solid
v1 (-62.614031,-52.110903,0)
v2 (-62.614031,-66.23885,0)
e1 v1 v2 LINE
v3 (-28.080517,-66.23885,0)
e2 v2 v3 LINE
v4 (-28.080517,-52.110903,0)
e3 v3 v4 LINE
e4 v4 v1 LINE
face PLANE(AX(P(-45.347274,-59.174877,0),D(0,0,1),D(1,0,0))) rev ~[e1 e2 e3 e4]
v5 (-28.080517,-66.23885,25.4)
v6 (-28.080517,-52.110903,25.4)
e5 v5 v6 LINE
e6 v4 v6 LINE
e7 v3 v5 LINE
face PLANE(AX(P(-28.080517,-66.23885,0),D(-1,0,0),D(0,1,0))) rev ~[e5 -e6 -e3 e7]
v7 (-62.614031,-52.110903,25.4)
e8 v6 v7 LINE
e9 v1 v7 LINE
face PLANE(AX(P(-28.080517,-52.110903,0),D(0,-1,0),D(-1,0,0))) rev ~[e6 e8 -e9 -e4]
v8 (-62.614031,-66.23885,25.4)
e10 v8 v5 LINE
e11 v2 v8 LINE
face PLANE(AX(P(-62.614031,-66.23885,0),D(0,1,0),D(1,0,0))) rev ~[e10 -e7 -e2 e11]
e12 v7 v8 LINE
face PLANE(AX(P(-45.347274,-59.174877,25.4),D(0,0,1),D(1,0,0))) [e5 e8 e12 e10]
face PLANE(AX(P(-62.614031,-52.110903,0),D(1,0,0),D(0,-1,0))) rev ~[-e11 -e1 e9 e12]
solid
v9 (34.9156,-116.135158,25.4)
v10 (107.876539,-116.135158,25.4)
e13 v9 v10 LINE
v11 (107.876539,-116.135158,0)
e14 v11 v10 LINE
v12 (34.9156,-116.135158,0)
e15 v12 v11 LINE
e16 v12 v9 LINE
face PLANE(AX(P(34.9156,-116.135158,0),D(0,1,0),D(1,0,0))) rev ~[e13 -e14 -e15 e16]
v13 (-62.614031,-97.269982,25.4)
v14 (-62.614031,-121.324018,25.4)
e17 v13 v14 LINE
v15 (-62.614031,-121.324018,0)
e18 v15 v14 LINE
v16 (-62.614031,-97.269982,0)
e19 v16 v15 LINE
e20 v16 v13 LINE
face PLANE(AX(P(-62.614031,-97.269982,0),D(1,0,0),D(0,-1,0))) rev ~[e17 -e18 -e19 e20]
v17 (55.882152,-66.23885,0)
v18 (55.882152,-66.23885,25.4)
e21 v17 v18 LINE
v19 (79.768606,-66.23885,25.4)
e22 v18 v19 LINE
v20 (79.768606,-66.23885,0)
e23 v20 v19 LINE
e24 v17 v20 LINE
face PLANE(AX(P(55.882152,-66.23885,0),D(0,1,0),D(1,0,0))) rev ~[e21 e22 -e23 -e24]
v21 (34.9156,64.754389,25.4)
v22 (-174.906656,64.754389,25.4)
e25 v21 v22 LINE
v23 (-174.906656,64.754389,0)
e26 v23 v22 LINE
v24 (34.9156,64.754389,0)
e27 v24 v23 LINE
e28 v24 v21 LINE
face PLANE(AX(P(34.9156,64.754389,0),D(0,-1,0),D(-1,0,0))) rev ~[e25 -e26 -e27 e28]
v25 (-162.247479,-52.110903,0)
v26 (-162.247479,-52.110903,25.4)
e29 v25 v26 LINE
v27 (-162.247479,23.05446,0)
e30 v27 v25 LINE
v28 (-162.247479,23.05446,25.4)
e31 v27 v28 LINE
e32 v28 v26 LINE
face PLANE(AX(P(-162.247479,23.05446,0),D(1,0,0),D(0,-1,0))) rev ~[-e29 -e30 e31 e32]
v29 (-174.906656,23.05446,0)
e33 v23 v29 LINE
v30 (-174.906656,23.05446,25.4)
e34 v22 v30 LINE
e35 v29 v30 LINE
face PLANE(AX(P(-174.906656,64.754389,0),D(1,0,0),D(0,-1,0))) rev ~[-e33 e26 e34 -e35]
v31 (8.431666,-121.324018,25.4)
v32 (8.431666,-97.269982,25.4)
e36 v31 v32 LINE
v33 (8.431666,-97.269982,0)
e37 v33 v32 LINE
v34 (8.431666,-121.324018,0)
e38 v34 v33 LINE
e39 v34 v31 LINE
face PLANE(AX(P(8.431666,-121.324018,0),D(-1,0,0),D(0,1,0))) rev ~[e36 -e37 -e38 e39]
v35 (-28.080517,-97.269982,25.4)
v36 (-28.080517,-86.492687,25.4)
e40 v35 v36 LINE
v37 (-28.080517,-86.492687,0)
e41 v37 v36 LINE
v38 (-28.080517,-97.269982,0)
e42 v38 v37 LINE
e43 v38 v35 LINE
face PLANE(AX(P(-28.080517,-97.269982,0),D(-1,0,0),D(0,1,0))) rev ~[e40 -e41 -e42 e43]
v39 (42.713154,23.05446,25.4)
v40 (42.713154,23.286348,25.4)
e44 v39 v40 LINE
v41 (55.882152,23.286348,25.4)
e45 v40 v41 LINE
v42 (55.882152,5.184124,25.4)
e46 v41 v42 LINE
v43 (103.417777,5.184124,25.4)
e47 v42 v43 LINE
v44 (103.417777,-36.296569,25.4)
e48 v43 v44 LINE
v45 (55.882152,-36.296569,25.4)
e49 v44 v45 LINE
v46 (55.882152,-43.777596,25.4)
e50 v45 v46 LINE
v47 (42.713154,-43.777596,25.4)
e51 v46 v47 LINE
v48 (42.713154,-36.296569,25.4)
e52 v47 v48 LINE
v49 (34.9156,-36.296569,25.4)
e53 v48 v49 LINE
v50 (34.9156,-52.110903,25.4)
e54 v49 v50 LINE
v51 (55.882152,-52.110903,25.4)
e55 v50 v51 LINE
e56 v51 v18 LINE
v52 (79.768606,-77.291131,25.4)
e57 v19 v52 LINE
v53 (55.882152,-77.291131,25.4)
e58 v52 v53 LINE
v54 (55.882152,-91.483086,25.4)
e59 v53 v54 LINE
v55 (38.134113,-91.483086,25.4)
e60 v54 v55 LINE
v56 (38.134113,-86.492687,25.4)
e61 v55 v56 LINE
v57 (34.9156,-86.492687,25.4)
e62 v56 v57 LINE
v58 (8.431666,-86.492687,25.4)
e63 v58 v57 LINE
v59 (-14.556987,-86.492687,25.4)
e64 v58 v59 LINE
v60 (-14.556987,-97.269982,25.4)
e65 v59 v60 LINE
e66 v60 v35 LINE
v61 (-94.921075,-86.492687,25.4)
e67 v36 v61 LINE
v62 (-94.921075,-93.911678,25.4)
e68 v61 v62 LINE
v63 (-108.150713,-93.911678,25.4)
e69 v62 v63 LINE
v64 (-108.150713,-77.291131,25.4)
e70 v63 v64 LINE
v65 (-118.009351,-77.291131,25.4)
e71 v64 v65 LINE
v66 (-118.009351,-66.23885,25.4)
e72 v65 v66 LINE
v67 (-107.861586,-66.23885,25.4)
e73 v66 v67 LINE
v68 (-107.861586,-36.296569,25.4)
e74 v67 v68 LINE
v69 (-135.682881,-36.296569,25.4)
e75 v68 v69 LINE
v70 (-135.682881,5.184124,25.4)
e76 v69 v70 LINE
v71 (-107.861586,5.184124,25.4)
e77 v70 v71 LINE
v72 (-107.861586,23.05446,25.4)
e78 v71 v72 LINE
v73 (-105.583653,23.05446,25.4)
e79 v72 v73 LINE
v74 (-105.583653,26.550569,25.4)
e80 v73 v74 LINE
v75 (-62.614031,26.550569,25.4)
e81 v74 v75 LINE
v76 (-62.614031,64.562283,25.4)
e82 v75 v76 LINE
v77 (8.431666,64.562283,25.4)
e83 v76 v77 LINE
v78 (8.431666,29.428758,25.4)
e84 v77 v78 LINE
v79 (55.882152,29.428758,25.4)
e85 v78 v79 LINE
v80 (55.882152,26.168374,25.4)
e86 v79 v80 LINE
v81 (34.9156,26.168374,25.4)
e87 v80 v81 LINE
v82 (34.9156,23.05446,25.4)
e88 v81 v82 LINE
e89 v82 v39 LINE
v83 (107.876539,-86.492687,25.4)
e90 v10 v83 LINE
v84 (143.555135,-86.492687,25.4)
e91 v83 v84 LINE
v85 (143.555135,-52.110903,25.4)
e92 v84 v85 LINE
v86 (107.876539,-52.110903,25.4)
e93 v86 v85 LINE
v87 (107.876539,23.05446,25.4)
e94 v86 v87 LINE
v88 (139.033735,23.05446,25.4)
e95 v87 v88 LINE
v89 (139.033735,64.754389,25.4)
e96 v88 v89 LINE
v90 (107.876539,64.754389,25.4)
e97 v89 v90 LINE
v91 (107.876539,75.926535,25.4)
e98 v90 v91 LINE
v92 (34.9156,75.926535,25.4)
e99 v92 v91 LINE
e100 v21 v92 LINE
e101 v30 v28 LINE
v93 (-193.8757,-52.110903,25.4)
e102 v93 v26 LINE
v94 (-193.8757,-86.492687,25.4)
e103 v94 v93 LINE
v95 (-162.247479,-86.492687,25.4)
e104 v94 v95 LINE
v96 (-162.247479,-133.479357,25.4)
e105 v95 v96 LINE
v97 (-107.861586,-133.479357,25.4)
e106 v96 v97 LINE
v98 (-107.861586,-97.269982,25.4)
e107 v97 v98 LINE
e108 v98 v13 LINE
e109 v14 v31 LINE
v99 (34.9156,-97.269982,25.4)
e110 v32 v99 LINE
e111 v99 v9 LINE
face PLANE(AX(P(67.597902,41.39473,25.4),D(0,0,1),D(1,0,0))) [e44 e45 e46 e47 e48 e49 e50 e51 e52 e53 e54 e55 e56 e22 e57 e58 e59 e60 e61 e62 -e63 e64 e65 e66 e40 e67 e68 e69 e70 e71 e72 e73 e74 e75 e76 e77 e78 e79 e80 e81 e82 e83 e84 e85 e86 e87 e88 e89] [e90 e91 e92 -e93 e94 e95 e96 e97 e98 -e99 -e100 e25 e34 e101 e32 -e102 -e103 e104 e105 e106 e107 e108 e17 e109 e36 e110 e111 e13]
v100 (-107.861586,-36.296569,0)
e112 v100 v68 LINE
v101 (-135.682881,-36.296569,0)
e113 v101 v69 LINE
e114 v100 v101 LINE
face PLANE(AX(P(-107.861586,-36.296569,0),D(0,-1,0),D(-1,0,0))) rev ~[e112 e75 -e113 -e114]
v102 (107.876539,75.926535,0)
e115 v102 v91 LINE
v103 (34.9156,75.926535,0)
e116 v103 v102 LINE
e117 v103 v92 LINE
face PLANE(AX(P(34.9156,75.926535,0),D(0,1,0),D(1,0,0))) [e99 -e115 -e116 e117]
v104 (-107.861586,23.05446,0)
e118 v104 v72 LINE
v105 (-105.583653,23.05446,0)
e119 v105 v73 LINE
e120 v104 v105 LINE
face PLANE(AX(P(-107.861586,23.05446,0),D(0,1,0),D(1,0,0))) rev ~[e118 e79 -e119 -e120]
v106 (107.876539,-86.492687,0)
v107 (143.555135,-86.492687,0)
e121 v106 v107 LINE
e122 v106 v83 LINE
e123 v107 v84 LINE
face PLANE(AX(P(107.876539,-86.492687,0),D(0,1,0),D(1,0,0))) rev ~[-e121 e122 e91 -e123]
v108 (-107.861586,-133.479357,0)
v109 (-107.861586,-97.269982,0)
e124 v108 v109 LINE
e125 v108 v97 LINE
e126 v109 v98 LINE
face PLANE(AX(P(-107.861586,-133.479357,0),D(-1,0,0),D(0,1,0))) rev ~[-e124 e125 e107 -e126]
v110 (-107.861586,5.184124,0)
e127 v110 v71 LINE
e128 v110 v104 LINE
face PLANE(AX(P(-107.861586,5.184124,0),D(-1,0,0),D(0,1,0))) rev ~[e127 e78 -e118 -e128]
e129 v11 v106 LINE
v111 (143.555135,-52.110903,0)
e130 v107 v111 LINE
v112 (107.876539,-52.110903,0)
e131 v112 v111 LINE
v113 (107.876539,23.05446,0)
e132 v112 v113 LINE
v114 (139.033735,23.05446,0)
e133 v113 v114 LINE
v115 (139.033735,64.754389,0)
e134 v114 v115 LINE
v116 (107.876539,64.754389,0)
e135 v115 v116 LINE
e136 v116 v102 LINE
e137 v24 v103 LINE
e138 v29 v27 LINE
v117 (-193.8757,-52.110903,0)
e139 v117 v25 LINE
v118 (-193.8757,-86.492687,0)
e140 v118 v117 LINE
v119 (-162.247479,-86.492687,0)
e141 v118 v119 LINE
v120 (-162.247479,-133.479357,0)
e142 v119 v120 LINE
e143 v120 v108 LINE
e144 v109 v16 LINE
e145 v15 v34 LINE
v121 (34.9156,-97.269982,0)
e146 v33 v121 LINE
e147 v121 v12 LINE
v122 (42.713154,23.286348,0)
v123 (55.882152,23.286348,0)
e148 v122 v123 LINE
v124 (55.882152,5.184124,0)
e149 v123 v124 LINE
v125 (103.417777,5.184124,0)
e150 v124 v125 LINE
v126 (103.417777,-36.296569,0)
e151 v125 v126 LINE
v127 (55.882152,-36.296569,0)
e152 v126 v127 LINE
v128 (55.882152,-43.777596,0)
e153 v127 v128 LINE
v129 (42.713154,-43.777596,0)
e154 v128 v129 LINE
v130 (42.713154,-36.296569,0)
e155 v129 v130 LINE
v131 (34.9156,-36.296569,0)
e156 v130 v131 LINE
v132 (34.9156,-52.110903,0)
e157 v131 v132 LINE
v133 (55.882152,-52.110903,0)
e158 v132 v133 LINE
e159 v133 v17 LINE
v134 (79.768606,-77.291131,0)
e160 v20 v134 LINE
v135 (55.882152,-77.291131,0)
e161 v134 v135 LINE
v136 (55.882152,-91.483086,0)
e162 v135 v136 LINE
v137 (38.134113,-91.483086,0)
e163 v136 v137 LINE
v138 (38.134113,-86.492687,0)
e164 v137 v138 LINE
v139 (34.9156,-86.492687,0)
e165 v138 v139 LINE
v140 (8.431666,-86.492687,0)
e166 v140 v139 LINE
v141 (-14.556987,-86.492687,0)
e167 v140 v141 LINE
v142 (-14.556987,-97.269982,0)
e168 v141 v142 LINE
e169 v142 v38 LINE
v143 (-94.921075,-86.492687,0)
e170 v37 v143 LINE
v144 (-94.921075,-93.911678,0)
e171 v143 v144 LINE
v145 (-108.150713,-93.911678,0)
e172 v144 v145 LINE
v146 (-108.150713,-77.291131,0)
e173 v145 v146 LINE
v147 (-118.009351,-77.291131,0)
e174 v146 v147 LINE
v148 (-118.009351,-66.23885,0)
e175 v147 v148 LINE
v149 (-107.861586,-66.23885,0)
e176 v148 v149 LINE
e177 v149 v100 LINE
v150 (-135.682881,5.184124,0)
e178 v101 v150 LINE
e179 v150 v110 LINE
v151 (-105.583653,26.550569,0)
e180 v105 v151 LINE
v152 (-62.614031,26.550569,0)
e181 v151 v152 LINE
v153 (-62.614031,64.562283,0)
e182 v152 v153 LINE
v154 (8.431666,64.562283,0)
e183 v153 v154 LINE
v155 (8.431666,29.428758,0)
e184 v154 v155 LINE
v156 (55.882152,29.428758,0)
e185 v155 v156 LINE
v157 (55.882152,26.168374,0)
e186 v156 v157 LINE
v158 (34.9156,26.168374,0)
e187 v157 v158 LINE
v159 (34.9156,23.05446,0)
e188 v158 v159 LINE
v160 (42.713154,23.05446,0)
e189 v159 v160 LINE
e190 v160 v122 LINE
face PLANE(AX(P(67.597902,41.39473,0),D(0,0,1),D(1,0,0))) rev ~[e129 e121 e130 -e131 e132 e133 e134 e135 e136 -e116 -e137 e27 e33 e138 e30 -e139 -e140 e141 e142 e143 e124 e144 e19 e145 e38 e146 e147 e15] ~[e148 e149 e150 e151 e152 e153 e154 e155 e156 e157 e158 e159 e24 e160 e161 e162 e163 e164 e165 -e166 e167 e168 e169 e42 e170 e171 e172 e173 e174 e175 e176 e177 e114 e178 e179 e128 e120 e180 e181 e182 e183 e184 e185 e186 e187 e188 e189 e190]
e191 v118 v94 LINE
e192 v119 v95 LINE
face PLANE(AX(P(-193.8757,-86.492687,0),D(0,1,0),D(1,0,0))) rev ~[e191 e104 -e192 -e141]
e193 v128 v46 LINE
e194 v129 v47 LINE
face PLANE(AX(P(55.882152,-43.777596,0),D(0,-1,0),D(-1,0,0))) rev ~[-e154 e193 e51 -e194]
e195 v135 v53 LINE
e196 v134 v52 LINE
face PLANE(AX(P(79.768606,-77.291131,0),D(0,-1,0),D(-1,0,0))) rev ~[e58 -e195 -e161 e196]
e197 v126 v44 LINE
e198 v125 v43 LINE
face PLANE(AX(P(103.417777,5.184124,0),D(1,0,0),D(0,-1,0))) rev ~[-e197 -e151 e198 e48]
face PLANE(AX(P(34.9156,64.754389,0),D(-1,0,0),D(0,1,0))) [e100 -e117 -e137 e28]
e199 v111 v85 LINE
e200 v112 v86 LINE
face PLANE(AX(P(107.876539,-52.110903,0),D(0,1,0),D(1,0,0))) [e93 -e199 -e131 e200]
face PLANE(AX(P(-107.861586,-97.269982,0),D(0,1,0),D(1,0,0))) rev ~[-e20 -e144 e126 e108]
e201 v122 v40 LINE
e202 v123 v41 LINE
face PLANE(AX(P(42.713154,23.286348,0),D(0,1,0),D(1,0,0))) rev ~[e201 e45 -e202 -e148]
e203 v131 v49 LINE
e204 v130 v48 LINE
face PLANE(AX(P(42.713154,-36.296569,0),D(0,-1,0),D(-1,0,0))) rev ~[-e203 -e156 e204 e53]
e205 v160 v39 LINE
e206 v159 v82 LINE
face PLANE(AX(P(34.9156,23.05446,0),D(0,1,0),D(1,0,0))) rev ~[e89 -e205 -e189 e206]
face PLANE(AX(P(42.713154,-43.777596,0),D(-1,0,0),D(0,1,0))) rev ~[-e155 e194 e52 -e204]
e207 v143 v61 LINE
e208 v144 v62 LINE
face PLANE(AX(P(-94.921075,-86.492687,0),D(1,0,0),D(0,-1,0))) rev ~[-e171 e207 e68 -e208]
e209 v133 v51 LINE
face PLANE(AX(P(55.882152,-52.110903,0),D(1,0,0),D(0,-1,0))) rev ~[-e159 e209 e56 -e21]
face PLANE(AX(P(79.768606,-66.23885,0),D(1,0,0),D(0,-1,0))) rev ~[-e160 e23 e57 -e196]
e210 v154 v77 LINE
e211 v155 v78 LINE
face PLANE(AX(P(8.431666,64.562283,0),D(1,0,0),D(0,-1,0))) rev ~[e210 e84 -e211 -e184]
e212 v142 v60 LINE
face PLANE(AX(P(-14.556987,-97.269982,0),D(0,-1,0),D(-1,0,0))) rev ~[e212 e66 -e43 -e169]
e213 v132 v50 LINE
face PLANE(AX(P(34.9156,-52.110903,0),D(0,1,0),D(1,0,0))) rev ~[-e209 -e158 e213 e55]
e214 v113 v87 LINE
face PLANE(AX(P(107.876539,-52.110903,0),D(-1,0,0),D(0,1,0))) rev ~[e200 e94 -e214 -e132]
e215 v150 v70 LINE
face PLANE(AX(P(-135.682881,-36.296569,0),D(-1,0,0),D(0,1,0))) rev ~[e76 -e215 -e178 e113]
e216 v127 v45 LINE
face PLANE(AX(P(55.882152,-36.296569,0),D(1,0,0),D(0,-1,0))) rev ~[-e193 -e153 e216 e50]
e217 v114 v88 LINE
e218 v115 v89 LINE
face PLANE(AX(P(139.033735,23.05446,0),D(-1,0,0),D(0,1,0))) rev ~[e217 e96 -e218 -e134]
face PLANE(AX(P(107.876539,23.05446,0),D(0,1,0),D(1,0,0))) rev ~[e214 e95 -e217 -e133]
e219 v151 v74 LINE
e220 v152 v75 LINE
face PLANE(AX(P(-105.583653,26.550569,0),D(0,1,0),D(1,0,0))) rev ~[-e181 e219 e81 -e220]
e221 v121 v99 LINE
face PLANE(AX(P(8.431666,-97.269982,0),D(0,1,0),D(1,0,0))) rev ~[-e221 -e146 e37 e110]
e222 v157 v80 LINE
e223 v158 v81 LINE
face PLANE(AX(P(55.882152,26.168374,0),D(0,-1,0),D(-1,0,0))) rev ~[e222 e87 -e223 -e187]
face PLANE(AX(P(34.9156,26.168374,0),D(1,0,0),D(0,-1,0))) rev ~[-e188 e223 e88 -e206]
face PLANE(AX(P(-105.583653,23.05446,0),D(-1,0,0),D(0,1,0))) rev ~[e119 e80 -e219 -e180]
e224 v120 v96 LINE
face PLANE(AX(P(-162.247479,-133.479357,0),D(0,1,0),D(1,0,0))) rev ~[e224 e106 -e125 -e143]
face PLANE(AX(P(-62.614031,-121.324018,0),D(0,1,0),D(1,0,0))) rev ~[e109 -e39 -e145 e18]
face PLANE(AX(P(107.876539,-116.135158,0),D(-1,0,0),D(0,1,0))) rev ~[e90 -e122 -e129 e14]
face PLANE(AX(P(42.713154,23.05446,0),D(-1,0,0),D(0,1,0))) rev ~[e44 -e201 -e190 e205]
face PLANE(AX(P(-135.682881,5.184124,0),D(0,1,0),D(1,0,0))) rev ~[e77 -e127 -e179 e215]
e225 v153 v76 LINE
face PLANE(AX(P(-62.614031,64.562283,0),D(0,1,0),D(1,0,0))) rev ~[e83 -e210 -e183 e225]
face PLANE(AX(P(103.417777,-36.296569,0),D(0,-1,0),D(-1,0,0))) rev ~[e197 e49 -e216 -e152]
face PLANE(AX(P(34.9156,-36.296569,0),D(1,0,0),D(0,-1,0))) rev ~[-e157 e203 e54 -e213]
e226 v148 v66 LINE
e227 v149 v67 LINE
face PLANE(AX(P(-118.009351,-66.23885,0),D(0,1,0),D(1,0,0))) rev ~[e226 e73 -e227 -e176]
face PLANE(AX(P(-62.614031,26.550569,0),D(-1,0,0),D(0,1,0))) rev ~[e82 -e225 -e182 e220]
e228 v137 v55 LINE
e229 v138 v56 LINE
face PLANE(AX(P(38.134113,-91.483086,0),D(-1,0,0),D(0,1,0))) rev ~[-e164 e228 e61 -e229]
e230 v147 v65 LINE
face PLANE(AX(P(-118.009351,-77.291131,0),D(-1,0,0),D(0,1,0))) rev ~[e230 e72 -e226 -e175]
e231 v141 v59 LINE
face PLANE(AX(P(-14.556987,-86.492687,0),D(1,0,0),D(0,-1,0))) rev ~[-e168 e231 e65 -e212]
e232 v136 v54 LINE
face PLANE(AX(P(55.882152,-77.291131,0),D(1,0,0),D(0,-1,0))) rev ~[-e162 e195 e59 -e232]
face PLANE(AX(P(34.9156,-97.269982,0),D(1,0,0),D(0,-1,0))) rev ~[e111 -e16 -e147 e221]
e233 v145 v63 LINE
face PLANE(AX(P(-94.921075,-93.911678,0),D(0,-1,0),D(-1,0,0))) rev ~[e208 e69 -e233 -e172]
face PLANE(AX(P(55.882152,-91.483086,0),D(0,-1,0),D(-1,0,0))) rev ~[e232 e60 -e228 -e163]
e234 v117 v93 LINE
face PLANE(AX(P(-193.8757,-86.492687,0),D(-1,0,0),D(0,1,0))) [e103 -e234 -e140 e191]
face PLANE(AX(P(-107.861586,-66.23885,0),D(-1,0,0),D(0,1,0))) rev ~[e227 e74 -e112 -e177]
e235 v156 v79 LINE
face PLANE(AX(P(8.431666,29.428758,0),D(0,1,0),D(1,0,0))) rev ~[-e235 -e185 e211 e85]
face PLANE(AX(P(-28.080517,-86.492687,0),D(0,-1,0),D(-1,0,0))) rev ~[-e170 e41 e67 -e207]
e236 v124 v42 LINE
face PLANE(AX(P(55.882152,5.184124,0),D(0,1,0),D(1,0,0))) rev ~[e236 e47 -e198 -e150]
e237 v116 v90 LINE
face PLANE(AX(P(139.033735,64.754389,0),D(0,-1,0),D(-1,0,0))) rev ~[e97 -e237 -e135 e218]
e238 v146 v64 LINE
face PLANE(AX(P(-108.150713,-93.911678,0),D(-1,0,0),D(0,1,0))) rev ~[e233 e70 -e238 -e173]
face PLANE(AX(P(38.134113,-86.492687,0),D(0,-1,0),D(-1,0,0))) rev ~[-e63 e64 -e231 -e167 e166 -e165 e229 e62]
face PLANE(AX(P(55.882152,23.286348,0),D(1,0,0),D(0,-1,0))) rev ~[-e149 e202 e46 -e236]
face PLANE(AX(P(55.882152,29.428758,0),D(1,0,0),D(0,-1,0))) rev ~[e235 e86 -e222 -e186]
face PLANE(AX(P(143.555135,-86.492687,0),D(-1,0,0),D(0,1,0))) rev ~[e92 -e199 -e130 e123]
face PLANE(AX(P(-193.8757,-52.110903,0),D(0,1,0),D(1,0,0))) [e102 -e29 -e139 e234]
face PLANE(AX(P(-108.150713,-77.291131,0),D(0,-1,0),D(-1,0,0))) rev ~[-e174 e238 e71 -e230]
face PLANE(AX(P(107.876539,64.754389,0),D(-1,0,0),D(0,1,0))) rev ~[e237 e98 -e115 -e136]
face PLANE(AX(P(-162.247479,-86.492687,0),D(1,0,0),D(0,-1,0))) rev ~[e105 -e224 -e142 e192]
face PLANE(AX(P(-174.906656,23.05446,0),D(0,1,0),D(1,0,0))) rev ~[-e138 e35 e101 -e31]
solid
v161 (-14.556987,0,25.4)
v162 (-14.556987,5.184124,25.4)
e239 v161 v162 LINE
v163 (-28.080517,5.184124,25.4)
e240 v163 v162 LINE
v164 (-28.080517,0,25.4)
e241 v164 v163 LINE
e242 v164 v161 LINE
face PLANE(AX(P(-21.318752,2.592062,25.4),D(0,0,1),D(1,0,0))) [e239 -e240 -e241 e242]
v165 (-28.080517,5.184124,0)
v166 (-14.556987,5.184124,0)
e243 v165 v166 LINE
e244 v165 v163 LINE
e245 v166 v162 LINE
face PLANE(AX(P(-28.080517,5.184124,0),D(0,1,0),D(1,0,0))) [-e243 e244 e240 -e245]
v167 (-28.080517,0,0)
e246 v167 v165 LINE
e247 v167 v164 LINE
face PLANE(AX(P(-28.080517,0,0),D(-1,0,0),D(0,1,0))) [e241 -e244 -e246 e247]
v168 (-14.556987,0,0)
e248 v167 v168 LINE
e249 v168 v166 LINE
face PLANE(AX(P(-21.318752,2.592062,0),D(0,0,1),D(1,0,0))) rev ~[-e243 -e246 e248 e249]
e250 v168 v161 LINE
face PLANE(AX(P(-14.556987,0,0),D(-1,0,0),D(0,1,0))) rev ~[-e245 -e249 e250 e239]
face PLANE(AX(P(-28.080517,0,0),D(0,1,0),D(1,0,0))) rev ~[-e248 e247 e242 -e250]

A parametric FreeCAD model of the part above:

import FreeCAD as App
import Part
import Sketcher
from FreeCAD import Vector
Q = App.Units.Quantity

doc = App.newDocument("Part")
body = doc.addObject("PartDesign::Body", "Body")

sketch1 = body.newObject("Sketcher::SketchObject", "Sketch")
sketch1.AttachmentSupport = (doc.getObject("XY_Plane"), [""])
sketch1.MapMode = "FlatFace"
sketch1.addGeometry(Part.LineSegment(Vector(-62.61, -97.27, 0), Vector(-62.61, -121.32, 0)), False)
sketch1.addGeometry(Part.LineSegment(Vector(-62.61, -121.32, 0), Vector(8.43, -121.32, 0)), False)
sketch1.addGeometry(Part.LineSegment(Vector(8.43, -121.32, 0), Vector(8.43, -97.27, 0)), False)
sketch1.addGeometry(Part.LineSegment(Vector(8.43, -97.27, 0), Vector(34.92, -97.27, 0)), False)
sketch1.addGeometry(Part.LineSegment(Vector(34.92, -97.27, 0), Vector(34.92, -116.14, 0)), False)
sketch1.addGeometry(Part.LineSegment(Vector(34.92, -116.14, 0), Vector(107.88, -116.14, 0)), False)
sketch1.addGeometry(Part.LineSegment(Vector(107.88, -116.14, 0), Vector(107.88, -86.49, 0)), False)
sketch1.addGeometry(Part.LineSegment(Vector(107.88, -86.49, 0), Vector(143.56, -86.49, 0)), False)
sketch1.addGeometry(Part.LineSegment(Vector(143.56, -86.49, 0), Vector(143.56, -52.11, 0)), False)
sketch1.addGeometry(Part.LineSegment(Vector(143.56, -52.11, 0), Vector(107.88, -52.11, 0)), False)
sketch1.addGeometry(Part.LineSegment(Vector(107.88, -52.11, 0), Vector(107.88, 23.05, 0)), False)
sketch1.addGeometry(Part.LineSegment(Vector(107.88, 23.05, 0), Vector(139.03, 23.05, 0)), False)
sketch1.addGeometry(Part.LineSegment(Vector(139.03, 23.05, 0), Vector(139.03, 64.75, 0)), False)
sketch1.addGeometry(Part.LineSegment(Vector(139.03, 64.75, 0), Vector(107.88, 64.75, 0)), False)
sketch1.addGeometry(Part.LineSegment(Vector(107.88, 64.75, 0), Vector(107.88, 75.93, 0)), False)
sketch1.addGeometry(Part.LineSegment(Vector(107.88, 75.93, 0), Vector(34.92, 75.93, 0)), False)
sketch1.addGeometry(Part.LineSegment(Vector(34.92, 75.93, 0), Vector(34.92, 64.75, 0)), False)
sketch1.addGeometry(Part.LineSegment(Vector(34.92, 64.75, 0), Vector(-174.91, 64.75, 0)), False)
sketch1.addGeometry(Part.LineSegment(Vector(-174.91, 64.75, 0), Vector(-174.91, 23.05, 0)), False)
sketch1.addGeometry(Part.LineSegment(Vector(-174.91, 23.05, 0), Vector(-162.25, 23.05, 0)), False)
sketch1.addGeometry(Part.LineSegment(Vector(-162.25, 23.05, 0), Vector(-162.25, -52.11, 0)), False)
sketch1.addGeometry(Part.LineSegment(Vector(-162.25, -52.11, 0), Vector(-193.88, -52.11, 0)), False)
sketch1.addGeometry(Part.LineSegment(Vector(-193.88, -52.11, 0), Vector(-193.88, -86.49, 0)), False)
sketch1.addGeometry(Part.LineSegment(Vector(-193.88, -86.49, 0), Vector(-162.25, -86.49, 0)), False)
sketch1.addGeometry(Part.LineSegment(Vector(-162.25, -86.49, 0), Vector(-162.25, -133.48, 0)), False)
sketch1.addGeometry(Part.LineSegment(Vector(-162.25, -133.48, 0), Vector(-107.86, -133.48, 0)), False)
sketch1.addGeometry(Part.LineSegment(Vector(-107.86, -133.48, 0), Vector(-107.86, -97.27, 0)), False)
sketch1.addGeometry(Part.LineSegment(Vector(-107.86, -97.27, 0), Vector(-62.61, -97.27, 0)), False)
sketch1.addGeometry(Part.LineSegment(Vector(34.92, 26.17, 0), Vector(34.92, 23.05, 0)), False)
sketch1.addGeometry(Part.LineSegment(Vector(34.92, 23.05, 0), Vector(42.71, 23.05, 0)), False)
sketch1.addGeometry(Part.LineSegment(Vector(42.71, 23.05, 0), Vector(42.71, 23.29, 0)), False)
sketch1.addGeometry(Part.LineSegment(Vector(42.71, 23.29, 0), Vector(55.88, 23.29, 0)), False)
sketch1.addGeometry(Part.LineSegment(Vector(55.88, 23.29, 0), Vector(55.88, 5.18, 0)), False)
sketch1.addGeometry(Part.LineSegment(Vector(55.88, 5.18, 0), Vector(103.42, 5.18, 0)), False)
sketch1.addGeometry(Part.LineSegment(Vector(103.42, 5.18, 0), Vector(103.42, -36.3, 0)), False)
sketch1.addGeometry(Part.LineSegment(Vector(103.42, -36.3, 0), Vector(55.88, -36.3, 0)), False)
sketch1.addGeometry(Part.LineSegment(Vector(55.88, -36.3, 0), Vector(55.88, -43.78, 0)), False)
sketch1.addGeometry(Part.LineSegment(Vector(55.88, -43.78, 0), Vector(42.71, -43.78, 0)), False)
sketch1.addGeometry(Part.LineSegment(Vector(42.71, -43.78, 0), Vector(42.71, -36.3, 0)), False)
sketch1.addGeometry(Part.LineSegment(Vector(42.71, -36.3, 0), Vector(34.92, -36.3, 0)), False)
sketch1.addGeometry(Part.LineSegment(Vector(34.92, -36.3, 0), Vector(34.92, -52.11, 0)), False)
sketch1.addGeometry(Part.LineSegment(Vector(34.92, -52.11, 0), Vector(55.88, -52.11, 0)), False)
sketch1.addGeometry(Part.LineSegment(Vector(55.88, -52.11, 0), Vector(55.88, -66.24, 0)), False)
sketch1.addGeometry(Part.LineSegment(Vector(55.88, -66.24, 0), Vector(79.77, -66.24, 0)), False)
sketch1.addGeometry(Part.LineSegment(Vector(79.77, -66.24, 0), Vector(79.77, -77.29, 0)), False)
sketch1.addGeometry(Part.LineSegment(Vector(79.77, -77.29, 0), Vector(55.88, -77.29, 0)), False)
sketch1.addGeometry(Part.LineSegment(Vector(55.88, -77.29, 0), Vector(55.88, -91.48, 0)), False)
sketch1.addGeometry(Part.LineSegment(Vector(55.88, -91.48, 0), Vector(38.13, -91.48, 0)), False)
sketch1.addGeometry(Part.LineSegment(Vector(38.13, -91.48, 0), Vector(38.13, -86.49, 0)), False)
sketch1.addGeometry(Part.LineSegment(Vector(38.13, -86.49, 0), Vector(34.92, -86.49, 0)), False)
sketch1.addGeometry(Part.LineSegment(Vector(34.92, -86.49, 0), Vector(8.43, -86.49, 0)), False)
sketch1.addGeometry(Part.LineSegment(Vector(8.43, -86.49, 0), Vector(-14.56, -86.49, 0)), False)
sketch1.addGeometry(Part.LineSegment(Vector(-14.56, -86.49, 0), Vector(-14.56, -97.27, 0)), False)
sketch1.addGeometry(Part.LineSegment(Vector(-14.56, -97.27, 0), Vector(-28.08, -97.27, 0)), False)
sketch1.addGeometry(Part.LineSegment(Vector(-28.08, -97.27, 0), Vector(-28.08, -86.49, 0)), False)
sketch1.addGeometry(Part.LineSegment(Vector(-28.08, -86.49, 0), Vector(-94.92, -86.49, 0)), False)
sketch1.addGeometry(Part.LineSegment(Vector(-94.92, -86.49, 0), Vector(-94.92, -93.91, 0)), False)
sketch1.addGeometry(Part.LineSegment(Vector(-94.92, -93.91, 0), Vector(-108.15, -93.91, 0)), False)
sketch1.addGeometry(Part.LineSegment(Vector(-108.15, -93.91, 0), Vector(-108.15, -77.29, 0)), False)
sketch1.addGeometry(Part.LineSegment(Vector(-108.15, -77.29, 0), Vector(-118.01, -77.29, 0)), False)
sketch1.addGeometry(Part.LineSegment(Vector(-118.01, -77.29, 0), Vector(-118.01, -66.24, 0)), False)
sketch1.addGeometry(Part.LineSegment(Vector(-118.01, -66.24, 0), Vector(-107.86, -66.24, 0)), False)
sketch1.addGeometry(Part.LineSegment(Vector(-107.86, -66.24, 0), Vector(-107.86, -36.3, 0)), False)
sketch1.addGeometry(Part.LineSegment(Vector(-107.86, -36.3, 0), Vector(-135.68, -36.3, 0)), False)
sketch1.addGeometry(Part.LineSegment(Vector(-135.68, -36.3, 0), Vector(-135.68, 5.18, 0)), False)
sketch1.addGeometry(Part.LineSegment(Vector(-135.68, 5.18, 0), Vector(-107.86, 5.18, 0)), False)
sketch1.addGeometry(Part.LineSegment(Vector(-107.86, 5.18, 0), Vector(-107.86, 23.05, 0)), False)
sketch1.addGeometry(Part.LineSegment(Vector(-107.86, 23.05, 0), Vector(-105.58, 23.05, 0)), False)
sketch1.addGeometry(Part.LineSegment(Vector(-105.58, 23.05, 0), Vector(-105.58, 26.55, 0)), False)
sketch1.addGeometry(Part.LineSegment(Vector(-105.58, 26.55, 0), Vector(-62.61, 26.55, 0)), False)
sketch1.addGeometry(Part.LineSegment(Vector(-62.61, 26.55, 0), Vector(-62.61, 64.56, 0)), False)
sketch1.addGeometry(Part.LineSegment(Vector(-62.61, 64.56, 0), Vector(8.43, 64.56, 0)), False)
sketch1.addGeometry(Part.LineSegment(Vector(8.43, 64.56, 0), Vector(8.43, 29.43, 0)), False)
sketch1.addGeometry(Part.LineSegment(Vector(8.43, 29.43, 0), Vector(55.88, 29.43, 0)), False)
sketch1.addGeometry(Part.LineSegment(Vector(55.88, 29.43, 0), Vector(55.88, 26.17, 0)), False)
sketch1.addGeometry(Part.LineSegment(Vector(55.88, 26.17, 0), Vector(34.92, 26.17, 0)), False)
sketch1.addConstraint(Sketcher.Constraint("Coincident", 0, 2, 1, 1))
sketch1.addConstraint(Sketcher.Constraint("Coincident", 1, 2, 2, 1))
sketch1.addConstraint(Sketcher.Constraint("Coincident", 2, 2, 3, 1))
sketch1.addConstraint(Sketcher.Constraint("Coincident", 3, 2, 4, 1))
sketch1.addConstraint(Sketcher.Constraint("Coincident", 4, 2, 5, 1))
sketch1.addConstraint(Sketcher.Constraint("Coincident", 5, 2, 6, 1))
sketch1.addConstraint(Sketcher.Constraint("Coincident", 6, 2, 7, 1))
sketch1.addConstraint(Sketcher.Constraint("Coincident", 7, 2, 8, 1))
sketch1.addConstraint(Sketcher.Constraint("Coincident", 8, 2, 9, 1))
sketch1.addConstraint(Sketcher.Constraint("Coincident", 9, 2, 10, 1))
sketch1.addConstraint(Sketcher.Constraint("Coincident", 10, 2, 11, 1))
sketch1.addConstraint(Sketcher.Constraint("Coincident", 11, 2, 12, 1))
sketch1.addConstraint(Sketcher.Constraint("Coincident", 12, 2, 13, 1))
sketch1.addConstraint(Sketcher.Constraint("Coincident", 13, 2, 14, 1))
sketch1.addConstraint(Sketcher.Constraint("Coincident", 14, 2, 15, 1))
sketch1.addConstraint(Sketcher.Constraint("Coincident", 15, 2, 16, 1))
sketch1.addConstraint(Sketcher.Constraint("Coincident", 16, 2, 17, 1))
sketch1.addConstraint(Sketcher.Constraint("Coincident", 17, 2, 18, 1))
sketch1.addConstraint(Sketcher.Constraint("Coincident", 18, 2, 19, 1))
sketch1.addConstraint(Sketcher.Constraint("Coincident", 19, 2, 20, 1))
sketch1.addConstraint(Sketcher.Constraint("Coincident", 20, 2, 21, 1))
sketch1.addConstraint(Sketcher.Constraint("Coincident", 21, 2, 22, 1))
sketch1.addConstraint(Sketcher.Constraint("Coincident", 22, 2, 23, 1))
sketch1.addConstraint(Sketcher.Constraint("Coincident", 23, 2, 24, 1))
sketch1.addConstraint(Sketcher.Constraint("Coincident", 24, 2, 25, 1))
sketch1.addConstraint(Sketcher.Constraint("Coincident", 25, 2, 26, 1))
sketch1.addConstraint(Sketcher.Constraint("Coincident", 26, 2, 27, 1))
sketch1.addConstraint(Sketcher.Constraint("Coincident", 27, 2, 0, 1))
sketch1.addConstraint(Sketcher.Constraint("Coincident", 28, 2, 29, 1))
sketch1.addConstraint(Sketcher.Constraint("Coincident", 29, 2, 30, 1))
sketch1.addConstraint(Sketcher.Constraint("Coincident", 30, 2, 31, 1))
sketch1.addConstraint(Sketcher.Constraint("Coincident", 31, 2, 32, 1))
sketch1.addConstraint(Sketcher.Constraint("Coincident", 32, 2, 33, 1))
sketch1.addConstraint(Sketcher.Constraint("Coincident", 33, 2, 34, 1))
sketch1.addConstraint(Sketcher.Constraint("Coincident", 34, 2, 35, 1))
sketch1.addConstraint(Sketcher.Constraint("Coincident", 35, 2, 36, 1))
sketch1.addConstraint(Sketcher.Constraint("Coincident", 36, 2, 37, 1))
sketch1.addConstraint(Sketcher.Constraint("Coincident", 37, 2, 38, 1))
sketch1.addConstraint(Sketcher.Constraint("Coincident", 38, 2, 39, 1))
sketch1.addConstraint(Sketcher.Constraint("Coincident", 39, 2, 40, 1))
sketch1.addConstraint(Sketcher.Constraint("Coincident", 40, 2, 41, 1))
sketch1.addConstraint(Sketcher.Constraint("Coincident", 41, 2, 42, 1))
sketch1.addConstraint(Sketcher.Constraint("Coincident", 42, 2, 43, 1))
sketch1.addConstraint(Sketcher.Constraint("Coincident", 43, 2, 44, 1))
sketch1.addConstraint(Sketcher.Constraint("Coincident", 44, 2, 45, 1))
sketch1.addConstraint(Sketcher.Constraint("Coincident", 45, 2, 46, 1))
sketch1.addConstraint(Sketcher.Constraint("Coincident", 46, 2, 47, 1))
sketch1.addConstraint(Sketcher.Constraint("Coincident", 47, 2, 48, 1))
sketch1.addConstraint(Sketcher.Constraint("Coincident", 48, 2, 49, 1))
sketch1.addConstraint(Sketcher.Constraint("Coincident", 49, 2, 50, 1))
sketch1.addConstraint(Sketcher.Constraint("Coincident", 50, 2, 51, 1))
sketch1.addConstraint(Sketcher.Constraint("Coincident", 51, 2, 52, 1))
sketch1.addConstraint(Sketcher.Constraint("Coincident", 52, 2, 53, 1))
sketch1.addConstraint(Sketcher.Constraint("Coincident", 53, 2, 54, 1))
sketch1.addConstraint(Sketcher.Constraint("Coincident", 54, 2, 55, 1))
sketch1.addConstraint(Sketcher.Constraint("Coincident", 55, 2, 56, 1))
sketch1.addConstraint(Sketcher.Constraint("Coincident", 56, 2, 57, 1))
sketch1.addConstraint(Sketcher.Constraint("Coincident", 57, 2, 58, 1))
sketch1.addConstraint(Sketcher.Constraint("Coincident", 58, 2, 59, 1))
sketch1.addConstraint(Sketcher.Constraint("Coincident", 59, 2, 60, 1))
sketch1.addConstraint(Sketcher.Constraint("Coincident", 60, 2, 61, 1))
sketch1.addConstraint(Sketcher.Constraint("Coincident", 61, 2, 62, 1))
sketch1.addConstraint(Sketcher.Constraint("Coincident", 62, 2, 63, 1))
sketch1.addConstraint(Sketcher.Constraint("Coincident", 63, 2, 64, 1))
sketch1.addConstraint(Sketcher.Constraint("Coincident", 64, 2, 65, 1))
sketch1.addConstraint(Sketcher.Constraint("Coincident", 65, 2, 66, 1))
sketch1.addConstraint(Sketcher.Constraint("Coincident", 66, 2, 67, 1))
sketch1.addConstraint(Sketcher.Constraint("Coincident", 67, 2, 68, 1))
sketch1.addConstraint(Sketcher.Constraint("Coincident", 68, 2, 69, 1))
sketch1.addConstraint(Sketcher.Constraint("Coincident", 69, 2, 70, 1))
sketch1.addConstraint(Sketcher.Constraint("Coincident", 70, 2, 71, 1))
sketch1.addConstraint(Sketcher.Constraint("Coincident", 71, 2, 72, 1))
sketch1.addConstraint(Sketcher.Constraint("Coincident", 72, 2, 73, 1))
sketch1.addConstraint(Sketcher.Constraint("Coincident", 73, 2, 74, 1))
sketch1.addConstraint(Sketcher.Constraint("Coincident", 74, 2, 75, 1))
sketch1.addConstraint(Sketcher.Constraint("Coincident", 75, 2, 28, 1))
sketch1.addConstraint(Sketcher.Constraint("Vertical", 0))
sketch1.addConstraint(Sketcher.Constraint("Horizontal", 1))
sketch1.addConstraint(Sketcher.Constraint("Vertical", 2))
sketch1.addConstraint(Sketcher.Constraint("Horizontal", 3))
sketch1.addConstraint(Sketcher.Constraint("Vertical", 4))
sketch1.addConstraint(Sketcher.Constraint("Horizontal", 5))
sketch1.addConstraint(Sketcher.Constraint("Vertical", 6))
sketch1.addConstraint(Sketcher.Constraint("Horizontal", 7))
sketch1.addConstraint(Sketcher.Constraint("Vertical", 8))
sketch1.addConstraint(Sketcher.Constraint("Horizontal", 9))
sketch1.addConstraint(Sketcher.Constraint("Vertical", 10))
sketch1.addConstraint(Sketcher.Constraint("Horizontal", 11))
sketch1.addConstraint(Sketcher.Constraint("Vertical", 12))
sketch1.addConstraint(Sketcher.Constraint("Horizontal", 13))
sketch1.addConstraint(Sketcher.Constraint("Vertical", 14))
sketch1.addConstraint(Sketcher.Constraint("Horizontal", 15))
sketch1.addConstraint(Sketcher.Constraint("Vertical", 16))
sketch1.addConstraint(Sketcher.Constraint("Horizontal", 17))
sketch1.addConstraint(Sketcher.Constraint("Vertical", 18))
sketch1.addConstraint(Sketcher.Constraint("Horizontal", 19))
sketch1.addConstraint(Sketcher.Constraint("Vertical", 20))
sketch1.addConstraint(Sketcher.Constraint("Horizontal", 21))
sketch1.addConstraint(Sketcher.Constraint("Vertical", 22))
sketch1.addConstraint(Sketcher.Constraint("Horizontal", 23))
sketch1.addConstraint(Sketcher.Constraint("Vertical", 24))
sketch1.addConstraint(Sketcher.Constraint("Horizontal", 25))
sketch1.addConstraint(Sketcher.Constraint("Vertical", 26))
sketch1.addConstraint(Sketcher.Constraint("Horizontal", 27))
sketch1.addConstraint(Sketcher.Constraint("Vertical", 28))
sketch1.addConstraint(Sketcher.Constraint("Horizontal", 29))
sketch1.addConstraint(Sketcher.Constraint("Vertical", 30))
sketch1.addConstraint(Sketcher.Constraint("Horizontal", 31))
sketch1.addConstraint(Sketcher.Constraint("Vertical", 32))
sketch1.addConstraint(Sketcher.Constraint("Horizontal", 33))
sketch1.addConstraint(Sketcher.Constraint("Vertical", 34))
sketch1.addConstraint(Sketcher.Constraint("Horizontal", 35))
sketch1.addConstraint(Sketcher.Constraint("Vertical", 36))
sketch1.addConstraint(Sketcher.Constraint("Horizontal", 37))
sketch1.addConstraint(Sketcher.Constraint("Vertical", 38))
sketch1.addConstraint(Sketcher.Constraint("Horizontal", 39))
sketch1.addConstraint(Sketcher.Constraint("Vertical", 40))
sketch1.addConstraint(Sketcher.Constraint("Horizontal", 41))
sketch1.addConstraint(Sketcher.Constraint("Vertical", 42))
sketch1.addConstraint(Sketcher.Constraint("Horizontal", 43))
sketch1.addConstraint(Sketcher.Constraint("Vertical", 44))
sketch1.addConstraint(Sketcher.Constraint("Horizontal", 45))
sketch1.addConstraint(Sketcher.Constraint("Vertical", 46))
sketch1.addConstraint(Sketcher.Constraint("Horizontal", 47))
sketch1.addConstraint(Sketcher.Constraint("Vertical", 48))
sketch1.addConstraint(Sketcher.Constraint("Horizontal", 49))
sketch1.addConstraint(Sketcher.Constraint("Horizontal", 50))
sketch1.addConstraint(Sketcher.Constraint("Horizontal", 51))
sketch1.addConstraint(Sketcher.Constraint("Vertical", 52))
sketch1.addConstraint(Sketcher.Constraint("Horizontal", 53))
sketch1.addConstraint(Sketcher.Constraint("Vertical", 54))
sketch1.addConstraint(Sketcher.Constraint("Horizontal", 55))
sketch1.addConstraint(Sketcher.Constraint("Vertical", 56))
sketch1.addConstraint(Sketcher.Constraint("Horizontal", 57))
sketch1.addConstraint(Sketcher.Constraint("Vertical", 58))
sketch1.addConstraint(Sketcher.Constraint("Horizontal", 59))
sketch1.addConstraint(Sketcher.Constraint("Vertical", 60))
sketch1.addConstraint(Sketcher.Constraint("Horizontal", 61))
sketch1.addConstraint(Sketcher.Constraint("Vertical", 62))
sketch1.addConstraint(Sketcher.Constraint("Horizontal", 63))
sketch1.addConstraint(Sketcher.Constraint("Vertical", 64))
sketch1.addConstraint(Sketcher.Constraint("Horizontal", 65))
sketch1.addConstraint(Sketcher.Constraint("Vertical", 66))
sketch1.addConstraint(Sketcher.Constraint("Horizontal", 67))
sketch1.addConstraint(Sketcher.Constraint("Vertical", 68))
sketch1.addConstraint(Sketcher.Constraint("Horizontal", 69))
sketch1.addConstraint(Sketcher.Constraint("Vertical", 70))
sketch1.addConstraint(Sketcher.Constraint("Horizontal", 71))
sketch1.addConstraint(Sketcher.Constraint("Vertical", 72))
sketch1.addConstraint(Sketcher.Constraint("Horizontal", 73))
sketch1.addConstraint(Sketcher.Constraint("Vertical", 74))
sketch1.addConstraint(Sketcher.Constraint("Horizontal", 75))
sketch1.addConstraint(Sketcher.Constraint("Horizontal", 13, 2, 16, 2))
sketch1.addConstraint(Sketcher.Constraint("Horizontal", 11, 2, 18, 2))
sketch1.addConstraint(Sketcher.Constraint("Horizontal", 9, 2, 20, 2))
sketch1.addConstraint(Sketcher.Constraint("Horizontal", 7, 2, 22, 2))
sketch1.addConstraint(Sketcher.Constraint("Horizontal", 3, 2, 26, 2))
sketch1.addConstraint(Sketcher.Constraint("Horizontal", 19, 2, 28, 2))
sketch1.addConstraint(Sketcher.Constraint("Horizontal", 35, 2, 38, 2))
sketch1.addConstraint(Sketcher.Constraint("Horizontal", 21, 2, 40, 2))
sketch1.addConstraint(Sketcher.Constraint("Horizontal", 23, 2, 48, 2))
sketch1.addConstraint(Sketcher.Constraint("Horizontal", 27, 2, 52, 2))
sketch1.addConstraint(Sketcher.Constraint("Horizontal", 51, 2, 54, 2))
sketch1.addConstraint(Sketcher.Constraint("Horizontal", 45, 2, 58, 2))
sketch1.addConstraint(Sketcher.Constraint("Horizontal", 43, 2, 60, 2))
sketch1.addConstraint(Sketcher.Constraint("Horizontal", 39, 2, 62, 2))
sketch1.addConstraint(Sketcher.Constraint("Horizontal", 33, 2, 64, 2))
sketch1.addConstraint(Sketcher.Constraint("Horizontal", 29, 2, 66, 2))
sketch1.addConstraint(Sketcher.Constraint("Vertical", 6, 2, 9, 2))
sketch1.addConstraint(Sketcher.Constraint("Vertical", 10, 2, 13, 2))
sketch1.addConstraint(Sketcher.Constraint("Vertical", 4, 2, 15, 2))
sketch1.addConstraint(Sketcher.Constraint("Vertical", 20, 2, 23, 2))
sketch1.addConstraint(Sketcher.Constraint("Vertical", 16, 2, 28, 2))
sketch1.addConstraint(Sketcher.Constraint("Vertical", 32, 2, 35, 2))
sketch1.addConstraint(Sketcher.Constraint("Vertical", 30, 2, 37, 2))
sketch1.addConstraint(Sketcher.Constraint("Vertical", 28, 2, 39, 2))
sketch1.addConstraint(Sketcher.Constraint("Vertical", 36, 2, 41, 2))
sketch1.addConstraint(Sketcher.Constraint("Vertical", 42, 2, 45, 2))
sketch1.addConstraint(Sketcher.Constraint("Vertical", 40, 2, 49, 2))
sketch1.addConstraint(Sketcher.Constraint("Vertical", 2, 2, 50, 2))
sketch1.addConstraint(Sketcher.Constraint("Vertical", 26, 2, 61, 2))
sketch1.addConstraint(Sketcher.Constraint("Vertical", 62, 2, 65, 2))
sketch1.addConstraint(Sketcher.Constraint("Vertical", 27, 2, 69, 2))
sketch1.addConstraint(Sketcher.Constraint("Vertical", 50, 2, 71, 2))
sketch1.addConstraint(Sketcher.Constraint("Vertical", 46, 2, 73, 2))
sketch1.addConstraint(Sketcher.Constraint("DistanceX", 31, 1, 31, 2, 13.168998))
sketch1.addConstraint(Sketcher.Constraint("DistanceY", 48, 1, 48, 2, 4.990399))
sketch1.addConstraint(Sketcher.Constraint("DistanceX", 5, 1, 5, 2, 72.960939))
sketch1.addConstraint(Sketcher.Constraint("DistanceX", 21, 2, 21, 1, 31.628221))
sketch1.addConstraint(Sketcher.Constraint("DistanceX", 47, 2, 47, 1, 17.748039))
sketch1.addConstraint(Sketcher.Constraint("DistanceX", 53, 2, 53, 1, 13.52353))
sketch1.addConstraint(Sketcher.Constraint("DistanceX", 57, 2, 57, 1, 13.229638))
sketch1.addConstraint(Sketcher.Constraint("DistanceX", 59, 2, 59, 1, 9.858638))
sketch1.addConstraint(Sketcher.Constraint("DistanceX", 69, 1, 69, 2, 42.969622))
sketch1.addConstraint(Sketcher.Constraint("DistanceY", 6, 1, 6, 2, 29.64247))
sketch1.addConstraint(Sketcher.Constraint("DistanceY", 12, 1, 12, 2, 41.699929))
sketch1.addConstraint(Sketcher.Constraint("DistanceY", 24, 2, 24, 1, 46.986669))
sketch1.addConstraint(Sketcher.Constraint("DistanceY", 30, 1, 30, 2, 0.231888))
sketch1.addConstraint(Sketcher.Constraint("DistanceY", 44, 2, 44, 1, 11.052281))
sketch1.addConstraint(Sketcher.Constraint("DistanceY", 56, 2, 56, 1, 7.41899))
sketch1.addConstraint(Sketcher.Constraint("DistanceY", 62, 1, 62, 2, 29.942282))
sketch1.addConstraint(Sketcher.Constraint("DistanceY", 68, 1, 68, 2, 3.496109))
sketch1.addConstraint(Sketcher.Constraint("DistanceX", -1, 1, 3, 2, 34.9156))
sketch1.addConstraint(Sketcher.Constraint("DistanceX", 21, 2, -1, 1, 193.8757))
sketch1.addConstraint(Sketcher.Constraint("DistanceX", 1, 1, 1, 2, 71.045697))
sketch1.addConstraint(Sketcher.Constraint("DistanceX", 3, 1, 3, 2, 26.483934))
sketch1.addConstraint(Sketcher.Constraint("DistanceX", 7, 1, 7, 2, 35.678595))
sketch1.addConstraint(Sketcher.Constraint("DistanceX", 11, 1, 11, 2, 31.157196))
sketch1.addConstraint(Sketcher.Constraint("DistanceX", 17, 2, 17, 1, 209.822256))
sketch1.addConstraint(Sketcher.Constraint("DistanceX", 25, 1, 25, 2, 54.385893))
sketch1.addConstraint(Sketcher.Constraint("DistanceX", 29, 1, 29, 2, 7.797554))
sketch1.addConstraint(Sketcher.Constraint("DistanceX", 33, 1, 33, 2, 47.535624))
sketch1.addConstraint(Sketcher.Constraint("DistanceX", 43, 1, 43, 2, 23.886453))
sketch1.addConstraint(Sketcher.Constraint("DistanceX", 51, 2, 51, 1, 22.988653))
sketch1.addConstraint(Sketcher.Constraint("DistanceX", 55, 2, 55, 1, 66.840557))
sketch1.addConstraint(Sketcher.Constraint("DistanceX", 63, 2, 63, 1, 27.821295))
sketch1.addConstraint(Sketcher.Constraint("DistanceY", 0, 2, 0, 1, 24.054036))
sketch1.addConstraint(Sketcher.Constraint("DistanceY", 4, 2, 4, 1, 18.865176))
sketch1.addConstraint(Sketcher.Constraint("DistanceY", 8, 1, 8, 2, 34.381784))
sketch1.addConstraint(Sketcher.Constraint("DistanceY", 10, 1, 10, 2, 75.165363))
sketch1.addConstraint(Sketcher.Constraint("DistanceY", 14, 1, 14, 2, 11.172146))
sketch1.addConstraint(Sketcher.Constraint("DistanceY", 28, 2, 28, 1, 3.113914))
sketch1.addConstraint(Sketcher.Constraint("DistanceY", 32, 2, 32, 1, 18.102224))
sketch1.addConstraint(Sketcher.Constraint("DistanceY", 34, 2, 34, 1, 41.480693))
sketch1.addConstraint(Sketcher.Constraint("DistanceY", 36, 2, 36, 1, 7.481027))
sketch1.addConstraint(Sketcher.Constraint("DistanceY", 70, 1, 70, 2, 38.011715))
sketch1.addConstraint(Sketcher.Constraint("DistanceY", 72, 2, 72, 1, 35.133526))
sketch1.addConstraint(Sketcher.Constraint("DistanceY", -1, 1, 10, 2, 23.05446))
pad1 = body.newObject("PartDesign::Pad", "Pad")
pad1.Profile = sketch1
pad1.Length = Q("1 in")
body2 = doc.addObject("PartDesign::Body", "Body001")

sketch2 = body2.newObject("Sketcher::SketchObject", "Sketch001")
sketch2.AttachmentSupport = (doc.getObject("XY_Plane001"), [""])
sketch2.MapMode = "FlatFace"
sketch2.addGeometry(Part.LineSegment(Vector(-28, 5, 0), Vector(-28, 0, 0)), False)
sketch2.addGeometry(Part.LineSegment(Vector(-28, 0, 0), Vector(-15, 0, 0)), False)
sketch2.addGeometry(Part.LineSegment(Vector(-15, 0, 0), Vector(-15, 5, 0)), False)
sketch2.addGeometry(Part.LineSegment(Vector(-15, 5, 0), Vector(-28, 5, 0)), False)
sketch2.addConstraint(Sketcher.Constraint("Coincident", 0, 2, 1, 1))
sketch2.addConstraint(Sketcher.Constraint("Coincident", 1, 2, 2, 1))
sketch2.addConstraint(Sketcher.Constraint("Coincident", 2, 2, 3, 1))
sketch2.addConstraint(Sketcher.Constraint("Coincident", 3, 2, 0, 1))
sketch2.addConstraint(Sketcher.Constraint("Vertical", 0))
sketch2.addConstraint(Sketcher.Constraint("Horizontal", 1))
sketch2.addConstraint(Sketcher.Constraint("Vertical", 2))
sketch2.addConstraint(Sketcher.Constraint("Horizontal", 3))
sketch2.addConstraint(Sketcher.Constraint("PointOnObject", 0, 2, -1))
sketch2.addConstraint(Sketcher.Constraint("DistanceX", 1, 1, 1, 2, 13.52353))
sketch2.addConstraint(Sketcher.Constraint("DistanceY", 0, 2, 0, 1, 5.184124))
sketch2.addConstraint(Sketcher.Constraint("DistanceX", 0, 2, -1, 1, 28.080517))
pad2 = body2.newObject("PartDesign::Pad", "Pad001")
pad2.Profile = sketch2
pad2.Length = Q("1 in")
body3 = doc.addObject("PartDesign::Body", "Body002")

sketch3 = body3.newObject("Sketcher::SketchObject", "Sketch002")
sketch3.AttachmentSupport = (doc.getObject("XY_Plane002"), [""])
sketch3.MapMode = "FlatFace"
sketch3.addGeometry(Part.LineSegment(Vector(-28, -66, 0), Vector(-28, -52, 0)), False)
sketch3.addGeometry(Part.LineSegment(Vector(-28, -52, 0), Vector(-63, -52, 0)), False)
sketch3.addGeometry(Part.LineSegment(Vector(-63, -52, 0), Vector(-63, -66, 0)), False)
sketch3.addGeometry(Part.LineSegment(Vector(-63, -66, 0), Vector(-28, -66, 0)), False)
sketch3.addConstraint(Sketcher.Constraint("Coincident", 0, 2, 1, 1))
sketch3.addConstraint(Sketcher.Constraint("Coincident", 1, 2, 2, 1))
sketch3.addConstraint(Sketcher.Constraint("Coincident", 2, 2, 3, 1))
sketch3.addConstraint(Sketcher.Constraint("Coincident", 3, 2, 0, 1))
sketch3.addConstraint(Sketcher.Constraint("Vertical", 0))
sketch3.addConstraint(Sketcher.Constraint("Horizontal", 1))
sketch3.addConstraint(Sketcher.Constraint("Vertical", 2))
sketch3.addConstraint(Sketcher.Constraint("Horizontal", 3))
sketch3.addConstraint(Sketcher.Constraint("DistanceX", 1, 2, 1, 1, 34.533514))
sketch3.addConstraint(Sketcher.Constraint("DistanceY", 0, 1, 0, 2, 14.127947))
sketch3.addConstraint(Sketcher.Constraint("DistanceX", 1, 2, -1, 1, 62.614031))
sketch3.addConstraint(Sketcher.Constraint("DistanceY", 2, 2, -1, 1, 66.23885))
pad3 = body3.newObject("PartDesign::Pad", "Pad002")
pad3.Profile = sketch3
pad3.Length = Q("1 in")

doc.recompute()
